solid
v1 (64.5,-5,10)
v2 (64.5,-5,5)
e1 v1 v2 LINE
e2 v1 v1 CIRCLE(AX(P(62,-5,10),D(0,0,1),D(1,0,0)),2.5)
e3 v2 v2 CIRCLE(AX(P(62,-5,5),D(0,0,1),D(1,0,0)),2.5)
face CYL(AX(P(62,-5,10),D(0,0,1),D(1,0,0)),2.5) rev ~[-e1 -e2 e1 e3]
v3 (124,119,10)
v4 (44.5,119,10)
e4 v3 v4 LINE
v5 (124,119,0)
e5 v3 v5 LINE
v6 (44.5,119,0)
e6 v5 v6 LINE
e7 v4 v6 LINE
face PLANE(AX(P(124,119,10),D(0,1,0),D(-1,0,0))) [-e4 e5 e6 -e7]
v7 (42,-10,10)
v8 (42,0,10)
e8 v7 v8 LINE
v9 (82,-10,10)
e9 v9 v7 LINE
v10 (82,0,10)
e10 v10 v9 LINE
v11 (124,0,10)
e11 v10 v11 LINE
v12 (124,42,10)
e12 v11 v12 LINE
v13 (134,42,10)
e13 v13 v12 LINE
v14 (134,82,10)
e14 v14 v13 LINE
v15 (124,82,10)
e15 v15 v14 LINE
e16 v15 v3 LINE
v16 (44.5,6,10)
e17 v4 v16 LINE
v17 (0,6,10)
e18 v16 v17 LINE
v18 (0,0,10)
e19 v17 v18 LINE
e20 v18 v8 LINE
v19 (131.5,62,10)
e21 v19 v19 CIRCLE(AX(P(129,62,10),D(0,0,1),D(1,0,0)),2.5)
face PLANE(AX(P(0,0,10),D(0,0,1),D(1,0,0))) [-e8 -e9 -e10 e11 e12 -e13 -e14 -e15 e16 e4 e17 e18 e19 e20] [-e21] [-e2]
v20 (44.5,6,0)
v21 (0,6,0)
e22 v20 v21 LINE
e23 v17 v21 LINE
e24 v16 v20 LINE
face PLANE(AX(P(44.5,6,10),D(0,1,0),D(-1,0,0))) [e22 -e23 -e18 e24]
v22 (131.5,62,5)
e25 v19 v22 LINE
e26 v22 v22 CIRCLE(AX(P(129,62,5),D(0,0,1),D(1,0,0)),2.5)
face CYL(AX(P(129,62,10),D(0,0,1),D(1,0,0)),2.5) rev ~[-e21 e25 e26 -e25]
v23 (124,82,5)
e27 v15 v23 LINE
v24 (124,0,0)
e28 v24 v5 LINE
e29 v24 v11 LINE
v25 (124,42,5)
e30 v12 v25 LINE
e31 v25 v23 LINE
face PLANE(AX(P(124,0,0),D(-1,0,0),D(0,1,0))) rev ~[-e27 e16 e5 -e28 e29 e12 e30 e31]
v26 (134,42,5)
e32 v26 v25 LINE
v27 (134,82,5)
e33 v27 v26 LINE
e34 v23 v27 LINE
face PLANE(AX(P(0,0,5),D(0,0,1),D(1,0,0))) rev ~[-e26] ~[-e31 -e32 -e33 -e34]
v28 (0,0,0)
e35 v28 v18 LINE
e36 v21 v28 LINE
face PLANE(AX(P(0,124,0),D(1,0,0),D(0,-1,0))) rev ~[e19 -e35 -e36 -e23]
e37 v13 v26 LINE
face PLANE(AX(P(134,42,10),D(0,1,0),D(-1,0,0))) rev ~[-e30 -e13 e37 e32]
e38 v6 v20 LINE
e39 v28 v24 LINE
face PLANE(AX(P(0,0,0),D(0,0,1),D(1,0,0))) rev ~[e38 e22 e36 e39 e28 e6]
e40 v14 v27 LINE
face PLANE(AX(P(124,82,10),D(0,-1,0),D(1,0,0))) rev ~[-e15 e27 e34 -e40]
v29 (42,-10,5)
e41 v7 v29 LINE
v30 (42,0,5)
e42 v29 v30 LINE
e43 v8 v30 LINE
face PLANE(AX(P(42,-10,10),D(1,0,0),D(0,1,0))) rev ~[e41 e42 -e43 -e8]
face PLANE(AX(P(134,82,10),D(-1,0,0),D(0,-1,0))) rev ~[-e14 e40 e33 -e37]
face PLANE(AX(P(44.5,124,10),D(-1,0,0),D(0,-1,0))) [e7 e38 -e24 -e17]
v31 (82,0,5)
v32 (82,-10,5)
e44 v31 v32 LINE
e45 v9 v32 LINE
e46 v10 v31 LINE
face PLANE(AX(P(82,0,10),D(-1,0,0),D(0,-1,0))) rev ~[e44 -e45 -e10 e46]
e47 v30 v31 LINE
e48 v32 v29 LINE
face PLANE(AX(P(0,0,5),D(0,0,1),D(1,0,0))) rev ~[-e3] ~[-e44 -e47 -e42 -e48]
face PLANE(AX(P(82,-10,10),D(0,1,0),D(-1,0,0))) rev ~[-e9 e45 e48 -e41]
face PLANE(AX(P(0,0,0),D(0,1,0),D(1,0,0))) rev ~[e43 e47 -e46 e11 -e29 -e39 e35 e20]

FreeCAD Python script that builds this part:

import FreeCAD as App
import Part
import Sketcher


def add_polygon(sketch, points):
    """Adds a closed chain of lines whose ends are joined by coincident constraints."""
    first, n = sketch.GeometryCount, len(points)
    for a, b in zip(points, points[1:] + points[:1]):
        sketch.addGeometry(Part.LineSegment(App.Vector(*a, 0), App.Vector(*b, 0)), False)
    for i in range(n):
        sketch.addConstraint(Sketcher.Constraint("Coincident", first + i, 2, first + (i + 1) % n, 1))

doc = App.newDocument("Part")
body = doc.addObject("PartDesign::Body", "Body")

# Sketch on XY plane
sketch1 = body.newObject("Sketcher::SketchObject", "Sketch")
sketch1.AttachmentSupport = (doc.getObject("XY_Plane"), [""])
sketch1.MapMode = "FlatFace"
add_polygon(sketch1, [(0, 124), (0, 0), (124, 0), (124, 124)])  # lines 0-3
sketch1.addConstraint(Sketcher.Constraint("Vertical", 0))
sketch1.addConstraint(Sketcher.Constraint("Horizontal", 1))
sketch1.addConstraint(Sketcher.Constraint("Vertical", 2))
sketch1.addConstraint(Sketcher.Constraint("Horizontal", 3))
sketch1.addConstraint(Sketcher.Constraint("Coincident", 0, 2, -1, 1))
sketch1.addConstraint(Sketcher.Constraint("Equal", 3, 0))
sketch1.addConstraint(Sketcher.Constraint("DistanceX", 1, 1, 1, 2, 124.0))
pad1 = body.newObject("PartDesign::Pad", "Pad")
pad1.Profile = sketch1
pad1.Length = 10

# Sketch on XY plane
sketch2 = body.newObject("Sketcher::SketchObject", "Sketch001")
sketch2.AttachmentSupport = (doc.getObject("XY_Plane"), [""])
sketch2.MapMode = "FlatFace"
sketch2.AttachmentOffset = App.Placement(App.Vector(0, 0, 10), App.Rotation())
add_polygon(sketch2, [(124, 82), (124, 42), (134, 42), (134, 82)])  # lines 0-3
sketch2.addGeometry(Part.Circle(App.Vector(129, 62, 0), App.Vector(0, 0, 1), 2.5), False)  # 4
add_polygon(sketch2, [(82, -10), (82, 0), (42, 0), (42, -10)])  # lines 5-8
sketch2.addGeometry(Part.Circle(App.Vector(62, -5, 0), App.Vector(0, 0, 1), 2.5), False)  # 9
sketch2.addConstraint(Sketcher.Constraint("Vertical", 0))
sketch2.addConstraint(Sketcher.Constraint("Horizontal", 1))
sketch2.addConstraint(Sketcher.Constraint("Vertical", 2))
sketch2.addConstraint(Sketcher.Constraint("Horizontal", 3))
sketch2.addConstraint(Sketcher.Constraint("Vertical", 5))
sketch2.addConstraint(Sketcher.Constraint("Horizontal", 6))
sketch2.addConstraint(Sketcher.Constraint("Vertical", 7))
sketch2.addConstraint(Sketcher.Constraint("Horizontal", 8))
sketch2.addConstraint(Sketcher.Constraint("Equal", 4, 9))
sketch2.addConstraint(Sketcher.Constraint("PointOnObject", 5, 2, -1))
sketch2.addConstraint(Sketcher.Constraint("Equal", 8, 0))
sketch2.addConstraint(Sketcher.Constraint("Equal", 3, 5))
sketch2.addConstraint(Sketcher.Constraint("Diameter", 4, 5.0))
sketch2.addConstraint(Sketcher.Constraint("DistanceX", 1, 1, 1, 2, 10.0))
sketch2.addConstraint(Sketcher.Constraint("DistanceX", 6, 2, 6, 1, 40.0))
sketch2.addConstraint(Sketcher.Constraint("DistanceY", 9, 3, -1, 1, 5.0))
sketch2.addConstraint(Sketcher.Constraint("DistanceX", 0, 2, 4, 3, 5.0))
sketch2.addConstraint(Sketcher.Constraint("DistanceX", -1, 1, 4, 3, 129.0))
sketch2.addConstraint(Sketcher.Constraint("DistanceY", -1, 1, 4, 3, 62.0))
sketch2.addConstraint(Sketcher.Constraint("DistanceX", -1, 1, 9, 3, 62.0))
sketch2.addConstraint(Sketcher.Constraint("DistanceY", -1, 1, 0, 2, 42.0))
sketch2.addConstraint(Sketcher.Constraint("DistanceX", -1, 1, 5, 2, 82.0))
pad2 = body.newObject("PartDesign::Pad", "Pad001")
pad2.Profile = sketch2
pad2.Length = 5
pad2.Reversed = True

# Sketch on XY plane
sketch3 = body.newObject("Sketcher::SketchObject", "Sketch002")
sketch3.AttachmentSupport = (doc.getObject("XY_Plane"), [""])
sketch3.MapMode = "FlatFace"
sketch3.AttachmentOffset = App.Placement(App.Vector(0, 0, 10), App.Rotation())
add_polygon(sketch3, [(44, 6), (44, 124), (0, 124), (0, 6)])  # lines 0-3
sketch3.addConstraint(Sketcher.Constraint("Vertical", 0))
sketch3.addConstraint(Sketcher.Constraint("Horizontal", 1))
sketch3.addConstraint(Sketcher.Constraint("Vertical", 2))
sketch3.addConstraint(Sketcher.Constraint("Horizontal", 3))
sketch3.addConstraint(Sketcher.Constraint("PointOnObject", 1, 2, -2))
sketch3.addConstraint(Sketcher.Constraint("DistanceY", 0, 1, 0, 2, 118.0))
sketch3.addConstraint(Sketcher.Constraint("DistanceX", 1, 2, 1, 1, 44.5))
sketch3.addConstraint(Sketcher.Constraint("DistanceY", -1, 1, 0, 2, 124.0))
pocket1 = body.newObject("PartDesign::Pocket", "Pocket")
pocket1.Profile = sketch3
pocket1.Type = "ThroughAll"

# Sketch on XY plane
sketch4 = body.newObject("Sketcher::SketchObject", "Sketch003")
sketch4.AttachmentSupport = (doc.getObject("XY_Plane"), [""])
sketch4.MapMode = "FlatFace"
sketch4.AttachmentOffset = App.Placement(App.Vector(0, 0, 10), App.Rotation())
add_polygon(sketch4, [(124, 124), (44, 124), (44, 119), (124, 119)])  # lines 0-3
sketch4.addConstraint(Sketcher.Constraint("Horizontal", 0))
sketch4.addConstraint(Sketcher.Constraint("Vertical", 1))
sketch4.addConstraint(Sketcher.Constraint("Horizontal", 2))
sketch4.addConstraint(Sketcher.Constraint("Vertical", 3))
sketch4.addConstraint(Sketcher.Constraint("DistanceY", 1, 2, 1, 1, 5.0))
sketch4.addConstraint(Sketcher.Constraint("DistanceX", 0, 2, 0, 1, 79.5))
sketch4.addConstraint(Sketcher.Constraint("DistanceY", -1, 1, 0, 2, 124.0))
sketch4.addConstraint(Sketcher.Constraint("DistanceX", -1, 1, 2, 2, 124.0))
pocket2 = body.newObject("PartDesign::Pocket", "Pocket001")
pocket2.Profile = sketch4
pocket2.Type = "ThroughAll"

doc.recompute()
